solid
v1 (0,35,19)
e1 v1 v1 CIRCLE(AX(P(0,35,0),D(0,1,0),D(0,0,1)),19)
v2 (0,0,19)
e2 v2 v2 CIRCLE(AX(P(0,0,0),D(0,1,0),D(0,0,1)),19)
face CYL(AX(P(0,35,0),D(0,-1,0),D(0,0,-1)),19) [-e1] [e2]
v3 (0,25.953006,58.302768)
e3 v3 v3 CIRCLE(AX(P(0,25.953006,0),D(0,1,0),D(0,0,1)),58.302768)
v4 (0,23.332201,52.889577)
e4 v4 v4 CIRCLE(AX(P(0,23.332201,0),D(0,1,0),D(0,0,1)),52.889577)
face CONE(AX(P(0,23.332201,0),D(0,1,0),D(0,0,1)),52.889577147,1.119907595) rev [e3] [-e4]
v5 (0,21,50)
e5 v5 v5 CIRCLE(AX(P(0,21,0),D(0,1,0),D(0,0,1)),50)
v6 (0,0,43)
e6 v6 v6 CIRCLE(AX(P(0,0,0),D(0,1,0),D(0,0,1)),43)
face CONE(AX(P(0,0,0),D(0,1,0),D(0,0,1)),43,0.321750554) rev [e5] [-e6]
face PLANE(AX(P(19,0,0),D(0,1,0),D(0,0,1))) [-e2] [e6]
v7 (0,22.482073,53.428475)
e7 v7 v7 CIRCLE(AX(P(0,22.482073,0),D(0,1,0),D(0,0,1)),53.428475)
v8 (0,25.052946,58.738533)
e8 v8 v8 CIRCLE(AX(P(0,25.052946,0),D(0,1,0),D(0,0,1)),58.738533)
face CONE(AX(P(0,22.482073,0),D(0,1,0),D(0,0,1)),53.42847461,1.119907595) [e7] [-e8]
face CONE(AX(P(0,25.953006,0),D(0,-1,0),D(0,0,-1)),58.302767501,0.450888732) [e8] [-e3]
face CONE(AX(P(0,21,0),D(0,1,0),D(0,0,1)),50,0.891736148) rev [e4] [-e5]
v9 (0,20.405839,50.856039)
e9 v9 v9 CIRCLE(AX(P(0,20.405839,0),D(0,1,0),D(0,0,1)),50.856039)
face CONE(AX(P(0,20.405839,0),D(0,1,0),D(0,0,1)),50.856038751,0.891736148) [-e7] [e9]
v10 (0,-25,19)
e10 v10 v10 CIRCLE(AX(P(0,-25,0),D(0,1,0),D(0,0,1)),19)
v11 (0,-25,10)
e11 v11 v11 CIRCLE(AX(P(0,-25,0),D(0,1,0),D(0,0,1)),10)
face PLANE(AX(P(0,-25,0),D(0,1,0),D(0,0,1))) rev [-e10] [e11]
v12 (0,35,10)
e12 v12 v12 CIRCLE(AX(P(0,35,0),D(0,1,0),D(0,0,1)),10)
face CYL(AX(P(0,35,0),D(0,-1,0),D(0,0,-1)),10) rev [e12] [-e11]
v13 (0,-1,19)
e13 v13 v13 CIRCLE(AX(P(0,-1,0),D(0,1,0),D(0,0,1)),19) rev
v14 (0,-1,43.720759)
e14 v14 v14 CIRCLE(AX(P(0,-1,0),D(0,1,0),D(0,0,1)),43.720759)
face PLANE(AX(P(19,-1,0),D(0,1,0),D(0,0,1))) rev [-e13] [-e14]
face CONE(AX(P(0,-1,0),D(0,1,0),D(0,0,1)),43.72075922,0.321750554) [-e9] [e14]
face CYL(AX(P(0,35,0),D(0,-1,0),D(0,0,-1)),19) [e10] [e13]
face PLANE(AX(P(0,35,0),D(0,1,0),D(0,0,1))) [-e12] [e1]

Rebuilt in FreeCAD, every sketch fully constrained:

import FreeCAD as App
import Part
import Sketcher
from FreeCAD import Vector
Q = App.Units.Quantity

doc = App.newDocument("Part")
params = doc.addObject("Spreadsheet::Sheet", "Params")
for row, (alias, value) in enumerate([
    ("sketch1_width", "24 mm"),
    ("sketch1_height", "1 mm"),
    ("sketch1_length", "1 mm"),
    ("revolution_angle", "360 deg"),
    ("sketch2_diameter", "38 mm"),
    ("sketch2_diameter2", "20 mm"),
    ("pad1_length", "35 mm"),
    ("pad1_length2", "25 mm"),
], start=1):
    params.set(f"A{row}", alias)
    params.set(f"B{row}", "=" + value)
    params.setAlias(f"B{row}", alias)

body = doc.addObject("PartDesign::Body", "Body")

sketch1 = doc.addObject("Sketcher::SketchObject", "Sketch")
body.addObject(sketch1)
sketch1.AttachmentSupport = (doc.XY_Plane, [""])
sketch1.MapMode = "FlatFace"
sketch1.addGeometry([
    Part.LineSegment(Vector(43, 0, 0), Vector(19, 0, 0)),
    Part.LineSegment(Vector(19, 0, 0), Vector(19, -1, 0)),
    Part.LineSegment(Vector(19, -1, 0), Vector(43.720759, -1, 0)),
    Part.LineSegment(Vector(43.720759, -1, 0), Vector(50.856039, 20.405839, 0)),
    Part.LineSegment(Vector(50.856039, 20.405839, 0), Vector(53.428475, 22.482073, 0)),
    Part.LineSegment(Vector(53.428475, 22.482073, 0), Vector(58.738533, 25.052946, 0)),
    Part.LineSegment(Vector(58.738533, 25.052946, 0), Vector(58.302768, 25.953006, 0)),
    Part.LineSegment(Vector(58.302768, 25.953006, 0), Vector(52.889577, 23.332201, 0)),
    Part.LineSegment(Vector(52.889577, 23.332201, 0), Vector(50, 21, 0)),
    Part.LineSegment(Vector(50, 21, 0), Vector(43, 0, 0)),
], False)
sketch1.addConstraint([
    Sketcher.Constraint("Coincident", 0, 2, 1, 1),
    Sketcher.Constraint("Coincident", 1, 2, 2, 1),
    Sketcher.Constraint("Coincident", 2, 2, 3, 1),
    Sketcher.Constraint("Coincident", 3, 2, 4, 1),
    Sketcher.Constraint("Coincident", 4, 2, 5, 1),
    Sketcher.Constraint("Coincident", 5, 2, 6, 1),
    Sketcher.Constraint("Coincident", 6, 2, 7, 1),
    Sketcher.Constraint("Coincident", 7, 2, 8, 1),
    Sketcher.Constraint("Coincident", 8, 2, 9, 1),
    Sketcher.Constraint("Coincident", 9, 2, 0, 1),
    Sketcher.Constraint("Horizontal", 0),
    Sketcher.Constraint("Vertical", 1),
    Sketcher.Constraint("Horizontal", 2),
    Sketcher.Constraint("PointOnObject", 0, 2, -1),
    Sketcher.Constraint("DistanceX", 0, 2, 0, 1, Q("24 mm")),
    Sketcher.Constraint("DistanceY", 1, 2, 1, 1, Q("1 mm")),
    Sketcher.Constraint("Distance", 6, Q("1 mm")),
    Sketcher.Constraint("DistanceX", -1, 1, 0, 2, Q("19 mm")),
    Sketcher.Constraint("DistanceX", -1, 1, 8, 2, Q("50 mm")),
    Sketcher.Constraint("DistanceY", -1, 1, 8, 2, Q("21 mm")),
    Sketcher.Constraint("DistanceX", 2, 1, 2, 2, Q("24.720759 mm")),
    Sketcher.Constraint("DistanceY", -1, 1, 7, 2, Q("23.332201 mm")),
    Sketcher.Constraint("Distance", 4, Q("3.305779 mm")),
    Sketcher.Constraint("Distance", 5, Q("5.899671 mm")),
    Sketcher.Constraint("Distance", 8, Q("3.71333 mm")),
    Sketcher.Constraint("DistanceX", -1, 1, 3, 2, Q("50.856039 mm")),
    Sketcher.Constraint("DistanceY", -1, 1, 3, 2, Q("20.405839 mm")),
    Sketcher.Constraint("DistanceX", 4, 2, 5, 2, Q("5.310059 mm")),
    Sketcher.Constraint("DistanceY", 5, 2, 6, 2, Q("0.90006 mm")),
    Sketcher.Constraint("DistanceX", 3, 2, 6, 2, Q("7.446729 mm")),
])
sketch1.setExpression("Constraints[14]", "Params.sketch1_width")
sketch1.setExpression("Constraints[15]", "Params.sketch1_height")
sketch1.setExpression("Constraints[16]", "Params.sketch1_length")
revolution = doc.addObject("PartDesign::Revolution", "Revolution")
body.addObject(revolution)
revolution.Profile = sketch1
revolution.ReferenceAxis = (sketch1, ["V_Axis"])
revolution.setExpression("Angle", "Params.revolution_angle")

sketch2 = doc.addObject("Sketcher::SketchObject", "Sketch001")
body.addObject(sketch2)
sketch2.AttachmentSupport = (doc.XZ_Plane, [""])
sketch2.MapMode = "FlatFace"
sketch2.addGeometry([
    Part.Circle(Vector(0, 0, 0), Vector(0, 0, 1), 19),
    Part.Circle(Vector(0, 0, 0), Vector(0, 0, 1), 10),
], False)
sketch2.addConstraint([
    Sketcher.Constraint("Coincident", 0, 3, -1, 1),
    Sketcher.Constraint("Coincident", 1, 3, -1, 1),
    Sketcher.Constraint("Diameter", 0, Q("38 mm")),
    Sketcher.Constraint("Diameter", 1, Q("20 mm")),
])
sketch2.setExpression("Constraints[2]", "Params.sketch2_diameter")
sketch2.setExpression("Constraints[3]", "Params.sketch2_diameter2")
pad1 = doc.addObject("PartDesign::Pad", "Pad")
body.addObject(pad1)
pad1.Profile = sketch2
pad1.Type = "TwoLengths"
pad1.setExpression("Length", "Params.pad1_length")
pad1.setExpression("Length2", "Params.pad1_length2")
pad1.Reversed = True

doc.recompute()
